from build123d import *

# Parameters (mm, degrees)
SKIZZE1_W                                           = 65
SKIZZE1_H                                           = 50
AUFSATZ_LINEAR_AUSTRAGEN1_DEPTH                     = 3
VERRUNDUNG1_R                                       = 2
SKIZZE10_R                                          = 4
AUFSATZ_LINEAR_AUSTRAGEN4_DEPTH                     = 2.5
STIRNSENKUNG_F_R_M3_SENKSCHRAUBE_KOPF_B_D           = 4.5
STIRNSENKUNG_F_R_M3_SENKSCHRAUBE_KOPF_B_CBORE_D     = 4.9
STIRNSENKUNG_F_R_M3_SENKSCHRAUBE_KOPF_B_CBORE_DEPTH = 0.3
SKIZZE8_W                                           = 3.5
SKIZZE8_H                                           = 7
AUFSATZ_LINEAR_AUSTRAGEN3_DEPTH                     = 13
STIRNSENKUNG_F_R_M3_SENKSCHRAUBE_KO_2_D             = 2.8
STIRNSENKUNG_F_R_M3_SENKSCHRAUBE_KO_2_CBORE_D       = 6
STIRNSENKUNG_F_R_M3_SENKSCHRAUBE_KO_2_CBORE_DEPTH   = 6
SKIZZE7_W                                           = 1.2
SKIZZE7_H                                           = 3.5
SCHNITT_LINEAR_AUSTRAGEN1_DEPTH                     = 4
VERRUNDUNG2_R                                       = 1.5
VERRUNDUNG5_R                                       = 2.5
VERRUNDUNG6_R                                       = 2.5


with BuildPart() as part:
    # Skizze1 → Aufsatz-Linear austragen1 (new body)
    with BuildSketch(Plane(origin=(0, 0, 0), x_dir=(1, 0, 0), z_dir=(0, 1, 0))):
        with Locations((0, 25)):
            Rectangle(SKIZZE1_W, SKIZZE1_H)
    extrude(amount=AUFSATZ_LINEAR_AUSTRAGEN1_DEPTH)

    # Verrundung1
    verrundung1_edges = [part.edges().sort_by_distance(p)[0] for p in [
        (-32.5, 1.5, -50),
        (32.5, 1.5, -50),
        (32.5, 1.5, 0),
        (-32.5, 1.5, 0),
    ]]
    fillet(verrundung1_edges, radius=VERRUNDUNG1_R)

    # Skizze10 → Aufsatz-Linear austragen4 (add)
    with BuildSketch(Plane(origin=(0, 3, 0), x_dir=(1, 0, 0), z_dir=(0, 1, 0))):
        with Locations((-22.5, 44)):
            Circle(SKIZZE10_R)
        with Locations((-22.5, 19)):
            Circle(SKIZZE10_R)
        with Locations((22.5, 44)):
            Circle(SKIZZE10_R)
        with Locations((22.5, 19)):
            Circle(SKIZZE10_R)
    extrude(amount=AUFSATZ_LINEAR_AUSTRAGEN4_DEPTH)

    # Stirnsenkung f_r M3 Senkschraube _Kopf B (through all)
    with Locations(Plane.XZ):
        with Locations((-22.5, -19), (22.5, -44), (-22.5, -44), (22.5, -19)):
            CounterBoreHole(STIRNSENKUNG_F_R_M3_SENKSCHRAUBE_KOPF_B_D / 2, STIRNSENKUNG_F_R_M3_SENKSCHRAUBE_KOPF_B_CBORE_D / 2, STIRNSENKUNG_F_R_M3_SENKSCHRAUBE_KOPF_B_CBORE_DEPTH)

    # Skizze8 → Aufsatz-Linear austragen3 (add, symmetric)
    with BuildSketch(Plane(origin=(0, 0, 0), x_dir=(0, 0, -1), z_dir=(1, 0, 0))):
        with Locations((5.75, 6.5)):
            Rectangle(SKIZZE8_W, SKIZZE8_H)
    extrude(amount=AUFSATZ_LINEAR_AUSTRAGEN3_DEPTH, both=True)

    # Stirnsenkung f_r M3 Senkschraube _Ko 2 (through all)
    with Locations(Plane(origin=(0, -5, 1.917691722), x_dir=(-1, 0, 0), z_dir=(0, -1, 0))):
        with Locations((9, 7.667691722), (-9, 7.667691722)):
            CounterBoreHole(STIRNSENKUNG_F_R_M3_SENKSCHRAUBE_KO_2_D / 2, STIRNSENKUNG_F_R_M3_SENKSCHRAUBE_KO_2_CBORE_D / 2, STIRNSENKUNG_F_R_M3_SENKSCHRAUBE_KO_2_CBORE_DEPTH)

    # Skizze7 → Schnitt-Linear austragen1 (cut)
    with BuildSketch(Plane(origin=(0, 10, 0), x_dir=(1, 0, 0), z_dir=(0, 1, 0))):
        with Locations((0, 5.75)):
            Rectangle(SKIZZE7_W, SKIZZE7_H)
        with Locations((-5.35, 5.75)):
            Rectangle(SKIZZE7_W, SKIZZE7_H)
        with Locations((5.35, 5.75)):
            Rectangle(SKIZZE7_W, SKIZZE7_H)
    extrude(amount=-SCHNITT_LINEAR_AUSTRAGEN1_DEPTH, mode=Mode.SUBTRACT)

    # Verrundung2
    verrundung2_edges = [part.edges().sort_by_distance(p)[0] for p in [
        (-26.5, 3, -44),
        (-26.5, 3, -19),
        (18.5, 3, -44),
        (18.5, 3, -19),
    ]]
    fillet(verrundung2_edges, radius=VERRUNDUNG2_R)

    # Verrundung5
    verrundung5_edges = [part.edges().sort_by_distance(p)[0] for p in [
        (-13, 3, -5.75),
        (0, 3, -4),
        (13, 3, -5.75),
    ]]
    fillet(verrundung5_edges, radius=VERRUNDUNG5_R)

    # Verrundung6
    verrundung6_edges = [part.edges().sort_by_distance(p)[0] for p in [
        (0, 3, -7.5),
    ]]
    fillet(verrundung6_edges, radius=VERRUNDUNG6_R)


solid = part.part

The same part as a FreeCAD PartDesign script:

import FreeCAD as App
import Part
import Sketcher
from FreeCAD import Vector
Q = App.Units.Quantity


def edges_at(feature, points):
    """Names of the edges that pass closest to the given points."""
    edges = feature.Shape.Edges
    near = lambda p: min(range(len(edges)), key=lambda i: edges[i].distToShape(Part.Vertex(*p))[0])
    return sorted({f"Edge{near(p) + 1}" for p in points})

doc = App.newDocument("Part")
body = doc.addObject("PartDesign::Body", "Body")

# Sketch on XZ plane
sketch1 = body.newObject("Sketcher::SketchObject", "Sketch")
sketch1.AttachmentSupport = (doc.getObject("XZ_Plane"), [""])
sketch1.MapMode = "FlatFace"
sketch1.addGeometry(Part.LineSegment(Vector(-32, -50, 0), Vector(-32, 0, 0)), False)
sketch1.addGeometry(Part.LineSegment(Vector(-32, 0, 0), Vector(32, 0, 0)), False)
sketch1.addGeometry(Part.LineSegment(Vector(32, 0, 0), Vector(32, -50, 0)), False)
sketch1.addGeometry(Part.LineSegment(Vector(32, -50, 0), Vector(-32, -50, 0)), False)
sketch1.addConstraint(Sketcher.Constraint("Coincident", 0, 2, 1, 1))
sketch1.addConstraint(Sketcher.Constraint("Coincident", 1, 2, 2, 1))
sketch1.addConstraint(Sketcher.Constraint("Coincident", 2, 2, 3, 1))
sketch1.addConstraint(Sketcher.Constraint("Coincident", 3, 2, 0, 1))
sketch1.addConstraint(Sketcher.Constraint("Vertical", 0))
sketch1.addConstraint(Sketcher.Constraint("Horizontal", 1))
sketch1.addConstraint(Sketcher.Constraint("Vertical", 2))
sketch1.addConstraint(Sketcher.Constraint("Horizontal", 3))
sketch1.addConstraint(Sketcher.Constraint("Symmetric", 0, 2, 1, 2, -1, 1))
sketch1.addConstraint(Sketcher.Constraint("DistanceX", 1, 1, 1, 2, Q("65 mm")))
sketch1.addConstraint(Sketcher.Constraint("DistanceY", 0, 1, 0, 2, Q("50 mm")))
pad1 = body.newObject("PartDesign::Pad", "Pad")
pad1.Profile = sketch1
pad1.Length = 3
pad1.Reversed = True
doc.recompute()

fillet = body.newObject("PartDesign::Fillet", "Fillet")
fillet.Base = (pad1, edges_at(pad1, [
    (-32.5, 1.5, -50),
    (32.5, 1.5, -50),
    (32.5, 1.5, 0),
    (-32.5, 1.5, 0),
]))
fillet.Radius = 2

# Sketch on XZ plane
sketch2 = body.newObject("Sketcher::SketchObject", "Sketch001")
sketch2.AttachmentSupport = (doc.getObject("XZ_Plane"), [""])
sketch2.MapMode = "FlatFace"
sketch2.AttachmentOffset = App.Placement(Vector(0, 0, -3), App.Rotation())
sketch2.addGeometry(Part.Circle(Vector(-22.5, -44, 0), Vector(0, 0, 1), 4), False)
sketch2.addGeometry(Part.Circle(Vector(-22.5, -19, 0), Vector(0, 0, 1), 4), False)
sketch2.addGeometry(Part.Circle(Vector(22.5, -44, 0), Vector(0, 0, 1), 4), False)
sketch2.addGeometry(Part.Circle(Vector(22.5, -19, 0), Vector(0, 0, 1), 4), False)
sketch2.addConstraint(Sketcher.Constraint("Equal", 0, 1))
sketch2.addConstraint(Sketcher.Constraint("Equal", 1, 2))
sketch2.addConstraint(Sketcher.Constraint("Equal", 2, 3))
sketch2.addConstraint(Sketcher.Constraint("Symmetric", 0, 3, 2, 3, -2))
sketch2.addConstraint(Sketcher.Constraint("Symmetric", 1, 3, 3, 3, -2))
sketch2.addConstraint(Sketcher.Constraint("Vertical", 0, 3, 1, 3))
sketch2.addConstraint(Sketcher.Constraint("Diameter", 0, Q("8 mm")))
sketch2.addConstraint(Sketcher.Constraint("DistanceY", 0, 3, -1, 1, Q("44 mm")))
sketch2.addConstraint(Sketcher.Constraint("DistanceY", 1, 3, -1, 1, Q("19 mm")))
sketch2.addConstraint(Sketcher.Constraint("DistanceX", 0, 3, 2, 3, Q("45 mm")))
pad2 = body.newObject("PartDesign::Pad", "Pad001")
pad2.Profile = sketch2
pad2.Length = 2.5
pad2.Reversed = True

# Sketch on XZ plane
sketch3 = body.newObject("Sketcher::SketchObject", "Sketch002")
sketch3.AttachmentSupport = (doc.getObject("XZ_Plane"), [""])
sketch3.MapMode = "FlatFace"
sketch3.addGeometry(Part.Circle(Vector(-22.5, -19, 0), Vector(0, 0, 1), 2.2), False)
sketch3.addGeometry(Part.Circle(Vector(22.5, -44, 0), Vector(0, 0, 1), 2.2), False)
sketch3.addGeometry(Part.Circle(Vector(-22.5, -44, 0), Vector(0, 0, 1), 2.2), False)
sketch3.addGeometry(Part.Circle(Vector(22.5, -19, 0), Vector(0, 0, 1), 2.2), False)
sketch3.addConstraint(Sketcher.Constraint("Equal", 0, 1))
sketch3.addConstraint(Sketcher.Constraint("Equal", 1, 2))
sketch3.addConstraint(Sketcher.Constraint("Equal", 2, 3))
sketch3.addConstraint(Sketcher.Constraint("Symmetric", 1, 3, 2, 3, -2))
sketch3.addConstraint(Sketcher.Constraint("Symmetric", 0, 3, 3, 3, -2))
sketch3.addConstraint(Sketcher.Constraint("Vertical", 0, 3, 2, 3))
sketch3.addConstraint(Sketcher.Constraint("Diameter", 0, Q("4.5 mm")))
sketch3.addConstraint(Sketcher.Constraint("DistanceY", 0, 3, -1, 1, Q("19 mm")))
sketch3.addConstraint(Sketcher.Constraint("DistanceY", 1, 3, -1, 1, Q("44 mm")))
sketch3.addConstraint(Sketcher.Constraint("DistanceX", 0, 3, 1, 3, Q("45 mm")))
doc.recompute()
hole = body.newObject("PartDesign::Hole", "Hole")
hole.Profile = sketch3
hole.ThreadType = "None"
hole.Diameter = 4.5
hole.DepthType = "ThroughAll"
hole.HoleCutType = "Counterbore"
hole.HoleCutDiameter = 4.9
hole.HoleCutDepth = 0.3

# Sketch on YZ plane
sketch4 = body.newObject("Sketcher::SketchObject", "Sketch003")
sketch4.AttachmentSupport = (doc.getObject("YZ_Plane"), [""])
sketch4.MapMode = "FlatFace"
sketch4.addGeometry(Part.LineSegment(Vector(10, -4, 0), Vector(3, -4, 0)), False)
sketch4.addGeometry(Part.LineSegment(Vector(3, -4, 0), Vector(3, -7.5, 0)), False)
sketch4.addGeometry(Part.LineSegment(Vector(3, -7.5, 0), Vector(10, -7.5, 0)), False)
sketch4.addGeometry(Part.LineSegment(Vector(10, -7.5, 0), Vector(10, -4, 0)), False)
sketch4.addConstraint(Sketcher.Constraint("Coincident", 0, 2, 1, 1))
sketch4.addConstraint(Sketcher.Constraint("Coincident", 1, 2, 2, 1))
sketch4.addConstraint(Sketcher.Constraint("Coincident", 2, 2, 3, 1))
sketch4.addConstraint(Sketcher.Constraint("Coincident", 3, 2, 0, 1))
sketch4.addConstraint(Sketcher.Constraint("Horizontal", 0))
sketch4.addConstraint(Sketcher.Constraint("Vertical", 1))
sketch4.addConstraint(Sketcher.Constraint("Horizontal", 2))
sketch4.addConstraint(Sketcher.Constraint("Vertical", 3))
sketch4.addConstraint(Sketcher.Constraint("DistanceX", 0, 2, 0, 1, Q("7 mm")))
sketch4.addConstraint(Sketcher.Constraint("DistanceY", 1, 2, 1, 1, Q("3.5 mm")))
sketch4.addConstraint(Sketcher.Constraint("DistanceX", -1, 1, 0, 2, Q("3 mm")))
sketch4.addConstraint(Sketcher.Constraint("DistanceY", 0, 2, -1, 1, Q("4 mm")))
pad3 = body.newObject("PartDesign::Pad", "Pad002")
pad3.Profile = sketch4
pad3.Length = 26
pad3.Midplane = True

# Sketch on XZ plane
sketch5 = body.newObject("Sketcher::SketchObject", "Sketch004")
sketch5.AttachmentSupport = (doc.getObject("XZ_Plane"), [""])
sketch5.MapMode = "FlatFace"
sketch5.AttachmentOffset = App.Placement(Vector(0, 0, 5), App.Rotation())
sketch5.addGeometry(Part.Circle(Vector(-9, -5.8, 0), Vector(0, 0, 1), 1.4), False)
sketch5.addGeometry(Part.Circle(Vector(9, -5.8, 0), Vector(0, 0, 1), 1.4), False)
sketch5.addConstraint(Sketcher.Constraint("Equal", 0, 1))
sketch5.addConstraint(Sketcher.Constraint("Symmetric", 0, 3, 1, 3, -2))
sketch5.addConstraint(Sketcher.Constraint("Diameter", 0, Q("2.8 mm")))
sketch5.addConstraint(Sketcher.Constraint("DistanceX", 0, 3, -1, 1, Q("9 mm")))
sketch5.addConstraint(Sketcher.Constraint("DistanceY", 0, 3, -1, 1, Q("5.75 mm")))
doc.recompute()
hole2 = body.newObject("PartDesign::Hole", "Hole001")
hole2.Profile = sketch5
hole2.ThreadType = "None"
hole2.Diameter = 2.8
hole2.DepthType = "ThroughAll"
hole2.HoleCutType = "Counterbore"
hole2.HoleCutDiameter = 6
hole2.HoleCutDepth = 6

# Sketch on XZ plane
sketch6 = body.newObject("Sketcher::SketchObject", "Sketch005")
sketch6.AttachmentSupport = (doc.getObject("XZ_Plane"), [""])
sketch6.MapMode = "FlatFace"
sketch6.AttachmentOffset = App.Placement(Vector(0, 0, -10), App.Rotation())
sketch6.addGeometry(Part.LineSegment(Vector(-0.6, -7.5, 0), Vector(-0.6, -4, 0)), False)
sketch6.addGeometry(Part.LineSegment(Vector(-0.6, -4, 0), Vector(0.6, -4, 0)), False)
sketch6.addGeometry(Part.LineSegment(Vector(0.6, -4, 0), Vector(0.6, -7.5, 0)), False)
sketch6.addGeometry(Part.LineSegment(Vector(0.6, -7.5, 0), Vector(-0.6, -7.5, 0)), False)
sketch6.addGeometry(Part.LineSegment(Vector(-6, -7.5, 0), Vector(-6, -4, 0)), False)
sketch6.addGeometry(Part.LineSegment(Vector(-6, -4, 0), Vector(-4.8, -4, 0)), False)
sketch6.addGeometry(Part.LineSegment(Vector(-4.8, -4, 0), Vector(-4.8, -7.5, 0)), False)
sketch6.addGeometry(Part.LineSegment(Vector(-4.8, -7.5, 0), Vector(-6, -7.5, 0)), False)
sketch6.addGeometry(Part.LineSegment(Vector(4.8, -7.5, 0), Vector(4.8, -4, 0)), False)
sketch6.addGeometry(Part.LineSegment(Vector(4.8, -4, 0), Vector(6, -4, 0)), False)
sketch6.addGeometry(Part.LineSegment(Vector(6, -4, 0), Vector(6, -7.5, 0)), False)
sketch6.addGeometry(Part.LineSegment(Vector(6, -7.5, 0), Vector(4.8, -7.5, 0)), False)
sketch6.addConstraint(Sketcher.Constraint("Coincident", 0, 2, 1, 1))
sketch6.addConstraint(Sketcher.Constraint("Coincident", 1, 2, 2, 1))
sketch6.addConstraint(Sketcher.Constraint("Coincident", 2, 2, 3, 1))
sketch6.addConstraint(Sketcher.Constraint("Coincident", 3, 2, 0, 1))
sketch6.addConstraint(Sketcher.Constraint("Coincident", 4, 2, 5, 1))
sketch6.addConstraint(Sketcher.Constraint("Coincident", 5, 2, 6, 1))
sketch6.addConstraint(Sketcher.Constraint("Coincident", 6, 2, 7, 1))
sketch6.addConstraint(Sketcher.Constraint("Coincident", 7, 2, 4, 1))
sketch6.addConstraint(Sketcher.Constraint("Coincident", 8, 2, 9, 1))
sketch6.addConstraint(Sketcher.Constraint("Coincident", 9, 2, 10, 1))
sketch6.addConstraint(Sketcher.Constraint("Coincident", 10, 2, 11, 1))
sketch6.addConstraint(Sketcher.Constraint("Coincident", 11, 2, 8, 1))
sketch6.addConstraint(Sketcher.Constraint("Vertical", 0))
sketch6.addConstraint(Sketcher.Constraint("Horizontal", 1))
sketch6.addConstraint(Sketcher.Constraint("Vertical", 2))
sketch6.addConstraint(Sketcher.Constraint("Horizontal", 3))
sketch6.addConstraint(Sketcher.Constraint("Vertical", 4))
sketch6.addConstraint(Sketcher.Constraint("Horizontal", 5))
sketch6.addConstraint(Sketcher.Constraint("Vertical", 6))
sketch6.addConstraint(Sketcher.Constraint("Horizontal", 7))
sketch6.addConstraint(Sketcher.Constraint("Vertical", 8))
sketch6.addConstraint(Sketcher.Constraint("Horizontal", 9))
sketch6.addConstraint(Sketcher.Constraint("Vertical", 10))
sketch6.addConstraint(Sketcher.Constraint("Horizontal", 11))
sketch6.addConstraint(Sketcher.Constraint("Symmetric", 5, 2, 8, 2, -2))
sketch6.addConstraint(Sketcher.Constraint("Symmetric", 7, 2, 10, 2, -2))
sketch6.addConstraint(Sketcher.Constraint("Horizontal", 1, 2, 4, 2))
sketch6.addConstraint(Sketcher.Constraint("Horizontal", 3, 2, 6, 2))
sketch6.addConstraint(Sketcher.Constraint("Equal", 3, 5))
sketch6.addConstraint(Sketcher.Constraint("DistanceX", 1, 1, 1, 2, Q("1.2 mm")))
sketch6.addConstraint(Sketcher.Constraint("DistanceY", 0, 1, 0, 2, Q("3.5 mm")))
sketch6.addConstraint(Sketcher.Constraint("DistanceY", 0, 2, -1, 1, Q("4 mm")))
sketch6.addConstraint(Sketcher.Constraint("DistanceX", 0, 2, -1, 1, Q("0.6 mm")))
sketch6.addConstraint(Sketcher.Constraint("DistanceX", 5, 2, 8, 2, Q("9.5 mm")))
pocket1 = body.newObject("PartDesign::Pocket", "Pocket")
pocket1.Profile = sketch6
pocket1.Length = 4
pocket1.Reversed = True
doc.recompute()

fillet2 = body.newObject("PartDesign::Fillet", "Fillet001")
fillet2.Base = (pocket1, edges_at(pocket1, [
    (-26.5, 3, -44),
    (-26.5, 3, -19),
    (18.5, 3, -44),
    (18.5, 3, -19),
]))
fillet2.Radius = 1.5
doc.recompute()

fillet3 = body.newObject("PartDesign::Fillet", "Fillet002")
fillet3.Base = (fillet2, edges_at(fillet2, [(-13, 3, -5.75), (0, 3, -4), (13, 3, -5.75)]))
fillet3.Radius = 2.5
doc.recompute()

fillet4 = body.newObject("PartDesign::Fillet", "Fillet003")
fillet4.Base = (fillet3, edges_at(fillet3, [(0, 3, -7.5)]))
fillet4.Radius = 2.5

doc.recompute()
